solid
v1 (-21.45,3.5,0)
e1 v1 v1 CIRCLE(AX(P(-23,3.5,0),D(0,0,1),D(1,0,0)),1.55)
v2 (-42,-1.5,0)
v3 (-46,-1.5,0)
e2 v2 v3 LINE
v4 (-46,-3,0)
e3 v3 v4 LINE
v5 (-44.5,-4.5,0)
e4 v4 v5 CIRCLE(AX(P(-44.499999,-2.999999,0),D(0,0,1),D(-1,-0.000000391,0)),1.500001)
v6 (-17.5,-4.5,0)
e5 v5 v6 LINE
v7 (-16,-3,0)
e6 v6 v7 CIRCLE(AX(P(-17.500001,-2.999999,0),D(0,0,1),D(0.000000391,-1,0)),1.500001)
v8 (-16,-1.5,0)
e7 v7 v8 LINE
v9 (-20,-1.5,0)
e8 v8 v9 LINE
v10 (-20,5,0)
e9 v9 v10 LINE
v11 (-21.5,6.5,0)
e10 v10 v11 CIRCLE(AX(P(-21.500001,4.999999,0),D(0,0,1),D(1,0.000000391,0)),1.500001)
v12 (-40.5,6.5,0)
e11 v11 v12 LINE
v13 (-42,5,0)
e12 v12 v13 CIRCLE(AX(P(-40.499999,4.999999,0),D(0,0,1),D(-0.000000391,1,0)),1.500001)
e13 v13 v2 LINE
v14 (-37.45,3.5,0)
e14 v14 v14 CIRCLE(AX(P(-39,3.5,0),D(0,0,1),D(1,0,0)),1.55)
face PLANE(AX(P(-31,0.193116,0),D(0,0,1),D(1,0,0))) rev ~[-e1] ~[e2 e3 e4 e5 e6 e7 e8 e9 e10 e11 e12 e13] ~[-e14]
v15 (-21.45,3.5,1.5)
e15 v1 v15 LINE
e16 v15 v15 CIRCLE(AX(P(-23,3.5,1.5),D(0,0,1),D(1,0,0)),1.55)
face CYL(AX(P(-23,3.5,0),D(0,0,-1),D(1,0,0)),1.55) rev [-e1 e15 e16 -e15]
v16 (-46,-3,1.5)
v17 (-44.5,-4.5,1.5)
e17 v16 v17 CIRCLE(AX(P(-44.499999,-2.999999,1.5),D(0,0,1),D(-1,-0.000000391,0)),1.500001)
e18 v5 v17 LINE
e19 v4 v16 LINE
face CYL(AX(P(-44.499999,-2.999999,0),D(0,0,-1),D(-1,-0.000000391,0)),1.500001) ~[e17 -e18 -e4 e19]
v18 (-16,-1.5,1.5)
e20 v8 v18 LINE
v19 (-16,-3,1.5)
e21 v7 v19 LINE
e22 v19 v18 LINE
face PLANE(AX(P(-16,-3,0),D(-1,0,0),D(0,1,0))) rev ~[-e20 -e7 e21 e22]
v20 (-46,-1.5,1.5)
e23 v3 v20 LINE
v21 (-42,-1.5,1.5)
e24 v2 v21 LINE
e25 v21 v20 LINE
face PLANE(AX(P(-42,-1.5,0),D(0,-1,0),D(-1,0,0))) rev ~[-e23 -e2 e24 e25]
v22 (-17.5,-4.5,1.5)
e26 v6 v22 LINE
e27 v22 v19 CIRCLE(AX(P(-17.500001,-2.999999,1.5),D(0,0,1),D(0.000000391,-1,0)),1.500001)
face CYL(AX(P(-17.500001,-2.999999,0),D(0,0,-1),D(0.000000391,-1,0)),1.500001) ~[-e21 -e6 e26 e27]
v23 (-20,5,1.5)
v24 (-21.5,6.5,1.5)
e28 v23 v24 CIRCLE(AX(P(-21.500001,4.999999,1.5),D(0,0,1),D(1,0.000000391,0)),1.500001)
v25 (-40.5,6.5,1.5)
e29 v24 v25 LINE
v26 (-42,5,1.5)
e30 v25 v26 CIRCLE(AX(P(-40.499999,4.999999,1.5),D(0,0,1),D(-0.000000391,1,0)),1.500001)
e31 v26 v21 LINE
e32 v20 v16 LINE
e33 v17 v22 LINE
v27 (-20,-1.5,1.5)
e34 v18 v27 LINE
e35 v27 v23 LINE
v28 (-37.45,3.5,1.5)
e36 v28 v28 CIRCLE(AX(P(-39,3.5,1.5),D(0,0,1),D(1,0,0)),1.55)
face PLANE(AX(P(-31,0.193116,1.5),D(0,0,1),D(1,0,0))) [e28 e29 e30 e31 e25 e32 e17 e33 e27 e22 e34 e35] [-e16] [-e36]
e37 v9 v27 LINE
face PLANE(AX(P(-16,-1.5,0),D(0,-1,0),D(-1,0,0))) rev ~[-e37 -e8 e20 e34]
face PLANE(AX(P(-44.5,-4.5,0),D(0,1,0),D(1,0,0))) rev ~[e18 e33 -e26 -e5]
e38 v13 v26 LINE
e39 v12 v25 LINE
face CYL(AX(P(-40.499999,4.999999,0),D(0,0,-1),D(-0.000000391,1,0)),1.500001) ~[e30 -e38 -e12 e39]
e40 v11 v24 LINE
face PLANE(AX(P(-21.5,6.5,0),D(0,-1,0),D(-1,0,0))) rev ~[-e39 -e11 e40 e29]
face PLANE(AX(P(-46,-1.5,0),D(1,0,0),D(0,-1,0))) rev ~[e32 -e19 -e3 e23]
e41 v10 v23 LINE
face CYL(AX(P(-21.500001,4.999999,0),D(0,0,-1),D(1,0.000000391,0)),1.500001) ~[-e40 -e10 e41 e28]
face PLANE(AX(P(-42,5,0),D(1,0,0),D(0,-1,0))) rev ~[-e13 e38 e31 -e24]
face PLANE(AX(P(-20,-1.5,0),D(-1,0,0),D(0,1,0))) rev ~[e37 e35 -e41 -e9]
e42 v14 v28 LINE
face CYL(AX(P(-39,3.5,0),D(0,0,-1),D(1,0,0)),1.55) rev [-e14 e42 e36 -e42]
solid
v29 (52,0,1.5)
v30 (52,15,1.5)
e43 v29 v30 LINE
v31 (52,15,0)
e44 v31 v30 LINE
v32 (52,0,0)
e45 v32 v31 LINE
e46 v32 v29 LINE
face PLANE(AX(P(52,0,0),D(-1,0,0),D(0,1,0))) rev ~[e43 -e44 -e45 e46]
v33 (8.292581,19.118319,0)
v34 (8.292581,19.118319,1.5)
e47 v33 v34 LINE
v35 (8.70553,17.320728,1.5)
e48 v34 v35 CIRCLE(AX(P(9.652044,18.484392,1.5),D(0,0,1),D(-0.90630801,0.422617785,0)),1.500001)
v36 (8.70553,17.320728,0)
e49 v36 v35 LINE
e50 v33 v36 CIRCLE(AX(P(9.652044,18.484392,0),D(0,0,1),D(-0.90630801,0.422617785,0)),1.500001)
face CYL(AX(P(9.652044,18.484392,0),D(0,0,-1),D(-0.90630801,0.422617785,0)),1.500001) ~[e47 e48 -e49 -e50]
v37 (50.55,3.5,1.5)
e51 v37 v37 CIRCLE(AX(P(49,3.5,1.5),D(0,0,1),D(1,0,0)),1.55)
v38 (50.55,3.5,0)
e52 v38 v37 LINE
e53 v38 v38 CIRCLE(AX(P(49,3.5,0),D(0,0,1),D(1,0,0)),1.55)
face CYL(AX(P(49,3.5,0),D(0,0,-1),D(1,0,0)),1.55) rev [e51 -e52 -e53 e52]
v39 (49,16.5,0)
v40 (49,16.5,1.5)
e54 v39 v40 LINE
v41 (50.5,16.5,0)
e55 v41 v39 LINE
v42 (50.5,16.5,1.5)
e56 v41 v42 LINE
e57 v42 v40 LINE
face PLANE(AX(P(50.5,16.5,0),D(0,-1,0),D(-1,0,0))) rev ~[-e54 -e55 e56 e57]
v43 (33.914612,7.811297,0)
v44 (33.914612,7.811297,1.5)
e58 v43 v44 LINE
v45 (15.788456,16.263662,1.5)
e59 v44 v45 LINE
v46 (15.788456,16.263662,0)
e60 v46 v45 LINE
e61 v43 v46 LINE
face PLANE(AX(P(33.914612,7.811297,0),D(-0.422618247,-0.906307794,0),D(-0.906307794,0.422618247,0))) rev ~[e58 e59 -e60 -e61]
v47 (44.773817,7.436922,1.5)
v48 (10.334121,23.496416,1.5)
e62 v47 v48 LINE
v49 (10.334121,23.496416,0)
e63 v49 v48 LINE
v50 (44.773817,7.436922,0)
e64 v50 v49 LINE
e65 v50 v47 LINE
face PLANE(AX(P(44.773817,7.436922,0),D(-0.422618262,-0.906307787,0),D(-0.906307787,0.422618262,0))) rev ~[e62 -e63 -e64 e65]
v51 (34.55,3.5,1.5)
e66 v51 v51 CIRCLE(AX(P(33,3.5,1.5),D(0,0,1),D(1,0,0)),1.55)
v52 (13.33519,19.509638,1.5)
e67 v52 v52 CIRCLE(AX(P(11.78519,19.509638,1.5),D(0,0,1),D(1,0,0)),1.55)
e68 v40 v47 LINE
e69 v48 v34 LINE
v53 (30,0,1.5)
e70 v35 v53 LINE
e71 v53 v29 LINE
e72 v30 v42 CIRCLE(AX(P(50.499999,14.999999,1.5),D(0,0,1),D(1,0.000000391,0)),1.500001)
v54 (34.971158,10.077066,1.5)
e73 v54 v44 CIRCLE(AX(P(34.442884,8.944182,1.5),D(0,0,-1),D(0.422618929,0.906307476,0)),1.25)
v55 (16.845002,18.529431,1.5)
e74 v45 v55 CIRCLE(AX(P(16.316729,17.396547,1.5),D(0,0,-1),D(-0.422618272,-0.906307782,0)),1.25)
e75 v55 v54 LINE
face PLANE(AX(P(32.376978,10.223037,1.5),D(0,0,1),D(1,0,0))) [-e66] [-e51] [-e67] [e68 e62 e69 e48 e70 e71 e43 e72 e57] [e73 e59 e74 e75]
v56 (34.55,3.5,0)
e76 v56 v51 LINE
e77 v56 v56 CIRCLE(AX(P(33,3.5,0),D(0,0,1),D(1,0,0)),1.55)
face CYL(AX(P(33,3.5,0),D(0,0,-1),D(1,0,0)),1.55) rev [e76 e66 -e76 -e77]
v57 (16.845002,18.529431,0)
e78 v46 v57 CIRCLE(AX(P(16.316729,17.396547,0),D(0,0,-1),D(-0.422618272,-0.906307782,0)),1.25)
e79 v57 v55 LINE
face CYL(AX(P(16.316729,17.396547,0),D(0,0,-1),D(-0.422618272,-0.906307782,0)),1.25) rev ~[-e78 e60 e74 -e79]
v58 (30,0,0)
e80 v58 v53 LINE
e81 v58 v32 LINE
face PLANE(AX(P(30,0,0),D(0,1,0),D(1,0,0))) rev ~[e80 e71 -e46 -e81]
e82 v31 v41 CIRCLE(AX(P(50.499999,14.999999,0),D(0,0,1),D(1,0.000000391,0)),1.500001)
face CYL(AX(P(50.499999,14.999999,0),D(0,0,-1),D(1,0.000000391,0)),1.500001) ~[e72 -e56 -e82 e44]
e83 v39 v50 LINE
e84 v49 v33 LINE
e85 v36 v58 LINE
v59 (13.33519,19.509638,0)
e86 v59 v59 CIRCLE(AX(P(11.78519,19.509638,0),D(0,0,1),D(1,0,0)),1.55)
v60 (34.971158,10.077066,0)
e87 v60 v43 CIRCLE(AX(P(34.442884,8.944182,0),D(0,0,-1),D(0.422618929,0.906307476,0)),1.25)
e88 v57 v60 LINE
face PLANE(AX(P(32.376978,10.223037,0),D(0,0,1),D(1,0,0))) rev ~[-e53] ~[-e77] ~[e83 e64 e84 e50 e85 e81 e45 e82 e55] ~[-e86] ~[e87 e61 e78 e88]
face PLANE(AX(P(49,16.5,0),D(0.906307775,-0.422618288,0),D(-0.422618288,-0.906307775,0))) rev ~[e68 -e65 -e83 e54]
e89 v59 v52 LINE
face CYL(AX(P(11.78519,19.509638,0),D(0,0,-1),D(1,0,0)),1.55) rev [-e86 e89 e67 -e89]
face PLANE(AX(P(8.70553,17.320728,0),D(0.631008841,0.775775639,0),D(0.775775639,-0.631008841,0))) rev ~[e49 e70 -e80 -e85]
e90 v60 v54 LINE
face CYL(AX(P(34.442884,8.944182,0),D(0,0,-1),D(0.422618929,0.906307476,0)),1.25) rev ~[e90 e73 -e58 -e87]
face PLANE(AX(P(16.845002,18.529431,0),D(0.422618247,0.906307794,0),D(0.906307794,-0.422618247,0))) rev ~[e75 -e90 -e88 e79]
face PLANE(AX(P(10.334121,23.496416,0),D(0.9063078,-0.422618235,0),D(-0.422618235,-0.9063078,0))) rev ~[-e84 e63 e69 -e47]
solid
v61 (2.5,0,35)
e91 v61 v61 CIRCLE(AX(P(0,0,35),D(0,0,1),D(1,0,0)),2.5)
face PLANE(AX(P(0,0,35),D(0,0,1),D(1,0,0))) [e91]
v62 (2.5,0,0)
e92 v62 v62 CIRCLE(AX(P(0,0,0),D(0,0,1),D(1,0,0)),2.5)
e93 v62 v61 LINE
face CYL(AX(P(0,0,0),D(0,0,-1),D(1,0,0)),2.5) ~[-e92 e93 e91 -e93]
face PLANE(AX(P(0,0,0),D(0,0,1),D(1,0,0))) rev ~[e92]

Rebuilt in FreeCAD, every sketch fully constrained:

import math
import FreeCAD as App
import Part
import Sketcher
from FreeCAD import Vector
Q = App.Units.Quantity

doc = App.newDocument("Part")
body = doc.addObject("PartDesign::Body", "Body")

sketch1 = body.newObject("Sketcher::SketchObject", "Sketch")
sketch1.AttachmentSupport = (doc.getObject("XY_Plane"), [""])
sketch1.MapMode = "FlatFace"
sketch1.addGeometry([
    Part.LineSegment(Vector(-42, 5, 0), Vector(-42, -1.5, 0)),
    Part.LineSegment(Vector(-42, -1.5, 0), Vector(-46, -1.5, 0)),
    Part.LineSegment(Vector(-46, -1.5, 0), Vector(-46, -3, 0)),
    Part.ArcOfCircle(Part.Circle(Vector(-44.5, -3, 0), Vector(0, 0, 1), 1.5), math.radians(-180), math.radians(-90)),
    Part.LineSegment(Vector(-44.5, -4.5, 0), Vector(-17.5, -4.5, 0)),
    Part.ArcOfCircle(Part.Circle(Vector(-17.5, -3, 0), Vector(0, 0, 1), 1.5), math.radians(-90), math.radians(0)),
    Part.LineSegment(Vector(-16, -3, 0), Vector(-16, -1.5, 0)),
    Part.LineSegment(Vector(-16, -1.5, 0), Vector(-20, -1.5, 0)),
    Part.LineSegment(Vector(-20, -1.5, 0), Vector(-20, 5, 0)),
    Part.ArcOfCircle(Part.Circle(Vector(-21.5, 5, 0), Vector(0, 0, 1), 1.5), math.radians(0), math.radians(90)),
    Part.LineSegment(Vector(-21.5, 6.5, 0), Vector(-40.5, 6.5, 0)),
    Part.ArcOfCircle(Part.Circle(Vector(-40.5, 5, 0), Vector(0, 0, 1), 1.5), math.radians(90), math.radians(180)),
    Part.Circle(Vector(-39, 3.5, 0), Vector(0, 0, 1), 1.6),
    Part.Circle(Vector(-23, 3.5, 0), Vector(0, 0, 1), 1.6),
], False)
sketch1.addConstraint([
    Sketcher.Constraint("Coincident", 0, 2, 1, 1),
    Sketcher.Constraint("Coincident", 1, 2, 2, 1),
    Sketcher.Constraint("Tangent", 2, 2, 3, 1),
    Sketcher.Constraint("Tangent", 3, 2, 4, 1),
    Sketcher.Constraint("Tangent", 4, 2, 5, 1),
    Sketcher.Constraint("Tangent", 5, 2, 6, 1),
    Sketcher.Constraint("Coincident", 6, 2, 7, 1),
    Sketcher.Constraint("Coincident", 7, 2, 8, 1),
    Sketcher.Constraint("Tangent", 8, 2, 9, 1),
    Sketcher.Constraint("Tangent", 9, 2, 10, 1),
    Sketcher.Constraint("Tangent", 10, 2, 11, 1),
    Sketcher.Constraint("Tangent", 11, 2, 0, 1),
    Sketcher.Constraint("Vertical", 0),
    Sketcher.Constraint("Horizontal", 1),
    Sketcher.Constraint("Vertical", 2),
    Sketcher.Constraint("Horizontal", 4),
    Sketcher.Constraint("Vertical", 6),
    Sketcher.Constraint("Horizontal", 7),
    Sketcher.Constraint("Vertical", 8),
    Sketcher.Constraint("Horizontal", 10),
    Sketcher.Constraint("Equal", 3, 5),
    Sketcher.Constraint("Equal", 5, 9),
    Sketcher.Constraint("Equal", 9, 11),
    Sketcher.Constraint("Equal", 12, 13),
    Sketcher.Constraint("Horizontal", 12, 3, 13, 3),
    Sketcher.Constraint("Horizontal", 1, 2, 6, 2),
    Sketcher.Constraint("Equal", 1, 7),
    Sketcher.Constraint("Diameter", 12, Q("3.1 mm")),
    Sketcher.Constraint("Radius", 3, Q("1.500001 mm")),
    Sketcher.Constraint("DistanceX", 1, 2, 1, 1, Q("4 mm")),
    Sketcher.Constraint("DistanceX", 4, 1, 4, 2, Q("27 mm")),
    Sketcher.Constraint("DistanceY", 0, 2, 0, 1, Q("6.5 mm")),
    Sketcher.Constraint("DistanceY", 2, 2, 2, 1, Q("1.5 mm")),
    Sketcher.Constraint("DistanceY", 3, 3, -1, 1, Q("2.999999 mm")),
    Sketcher.Constraint("DistanceX", 12, 3, -1, 1, Q("39 mm")),
    Sketcher.Constraint("DistanceX", 13, 3, -1, 1, Q("23 mm")),
    Sketcher.Constraint("DistanceX", 0, 2, -1, 1, Q("42 mm")),
    Sketcher.Constraint("DistanceY", 0, 2, 12, 3, Q("5 mm")),
])
pad1 = body.newObject("PartDesign::Pad", "Pad")
pad1.Profile = sketch1
pad1.Length = 1.5
body2 = doc.addObject("PartDesign::Body", "Body001")

sketch2 = body2.newObject("Sketcher::SketchObject", "Sketch001")
sketch2.AttachmentSupport = (doc.getObject("XY_Plane001"), [""])
sketch2.MapMode = "FlatFace"
sketch2.addGeometry([
    Part.LineSegment(Vector(44.8, 7.4, 0), Vector(10.3, 23.5, 0)),
    Part.LineSegment(Vector(10.3, 23.5, 0), Vector(8.3, 19.1, 0)),
    Part.ArcOfCircle(Part.Circle(Vector(9.7, 18.5, 0), Vector(0, 0, 1), 1.5), math.radians(155), math.radians(231)),
    Part.LineSegment(Vector(8.7, 17.3, 0), Vector(30, 0, 0)),
    Part.LineSegment(Vector(30, 0, 0), Vector(52, 0, 0)),
    Part.LineSegment(Vector(52, 0, 0), Vector(52, 15, 0)),
    Part.ArcOfCircle(Part.Circle(Vector(50.5, 15, 0), Vector(0, 0, 1), 1.5), math.radians(0), math.radians(90)),
    Part.LineSegment(Vector(50.5, 16.5, 0), Vector(49, 16.5, 0)),
    Part.LineSegment(Vector(49, 16.5, 0), Vector(44.8, 7.4, 0)),
    Part.Circle(Vector(33, 3.5, 0), Vector(0, 0, 1), 1.6),
    Part.Circle(Vector(49, 3.5, 0), Vector(0, 0, 1), 1.6),
    Part.LineSegment(Vector(33.9, 7.8, 0), Vector(15.8, 16.3, 0)),
    Part.ArcOfCircle(Part.Circle(Vector(16.3, 17.4, 0), Vector(0, 0, 1), 1.2), math.radians(65), math.radians(245)),
    Part.LineSegment(Vector(16.8, 18.5, 0), Vector(35, 10.1, 0)),
    Part.ArcOfCircle(Part.Circle(Vector(34.4, 8.9, 0), Vector(0, 0, 1), 1.2), math.radians(-115), math.radians(65)),
    Part.Circle(Vector(11.8, 19.5, 0), Vector(0, 0, 1), 1.6),
], False)
sketch2.addConstraint([
    Sketcher.Constraint("Coincident", 0, 2, 1, 1),
    Sketcher.Constraint("Tangent", 1, 2, 2, 1),
    Sketcher.Constraint("Tangent", 2, 2, 3, 1),
    Sketcher.Constraint("Coincident", 3, 2, 4, 1),
    Sketcher.Constraint("Coincident", 4, 2, 5, 1),
    Sketcher.Constraint("Tangent", 5, 2, 6, 1),
    Sketcher.Constraint("Tangent", 6, 2, 7, 1),
    Sketcher.Constraint("Coincident", 7, 2, 8, 1),
    Sketcher.Constraint("Coincident", 8, 2, 0, 1),
    Sketcher.Constraint("Tangent", 11, 2, 12, 2),
    Sketcher.Constraint("Tangent", 12, 1, 13, 1),
    Sketcher.Constraint("Tangent", 13, 2, 14, 2),
    Sketcher.Constraint("Tangent", 14, 1, 11, 1),
    Sketcher.Constraint("Horizontal", 4),
    Sketcher.Constraint("Vertical", 5),
    Sketcher.Constraint("Horizontal", 7),
    Sketcher.Constraint("Equal", 2, 6),
    Sketcher.Constraint("Equal", 9, 10),
    Sketcher.Constraint("Equal", 12, 14),
    Sketcher.Constraint("Equal", 10, 15),
    Sketcher.Constraint("PointOnObject", 3, 2, -1),
    Sketcher.Constraint("Perpendicular", 0, 1),
    Sketcher.Constraint("Parallel", 1, 8),
    Sketcher.Constraint("Perpendicular", 8, 11),
    Sketcher.Constraint("Horizontal", 9, 3, 10, 3),
    Sketcher.Constraint("Vertical", 10, 3, 7, 2),
    Sketcher.Constraint("Diameter", 9, Q("3.1 mm")),
    Sketcher.Constraint("Radius", 2, Q("1.500001 mm")),
    Sketcher.Constraint("DistanceX", 4, 1, 4, 2, Q("22 mm")),
    Sketcher.Constraint("DistanceY", 5, 1, 5, 2, Q("15 mm")),
    Sketcher.Constraint("Angle", 0, Q("155 deg")),
    Sketcher.Constraint("Radius", 12, Q("1.25 mm")),
    Sketcher.Constraint("Distance", 0, Q("38 mm")),
    Sketcher.Constraint("Distance", 8, Q("10 mm")),
    Sketcher.Constraint("Distance", 11, Q("20 mm")),
    Sketcher.Constraint("DistanceX", 7, 2, 7, 1, Q("1.5 mm")),
    Sketcher.Constraint("DistanceX", -1, 1, 9, 3, Q("33 mm")),
    Sketcher.Constraint("DistanceX", -1, 1, 10, 3, Q("49 mm")),
    Sketcher.Constraint("DistanceY", 10, 3, 6, 2, Q("13 mm")),
    Sketcher.Constraint("DistanceX", -1, 1, 12, 1, Q("16.845002 mm")),
    Sketcher.Constraint("DistanceX", 2, 2, 12, 3, Q("7.611199 mm")),
    Sketcher.Constraint("DistanceY", -1, 1, 14, 3, Q("8.944182 mm")),
    Sketcher.Constraint("DistanceX", -1, 1, 15, 3, Q("11.78519 mm")),
    Sketcher.Constraint("DistanceY", 12, 3, 15, 3, Q("2.113091 mm")),
])
pad2 = body2.newObject("PartDesign::Pad", "Pad001")
pad2.Profile = sketch2
pad2.Length = 1.5
body3 = doc.addObject("PartDesign::Body", "Body002")

sketch3 = body3.newObject("Sketcher::SketchObject", "Sketch002")
sketch3.AttachmentSupport = (doc.getObject("XY_Plane002"), [""])
sketch3.MapMode = "FlatFace"
sketch3.addGeometry(Part.Circle(Vector(0, 0, 0), Vector(0, 0, 1), 2.5), False)
sketch3.addConstraint([
    Sketcher.Constraint("Coincident", 0, 3, -1, 1),
    Sketcher.Constraint("Diameter", 0, Q("5 mm")),
])
pad3 = body3.newObject("PartDesign::Pad", "Pad002")
pad3.Profile = sketch3
pad3.Length = 35

doc.recompute()
